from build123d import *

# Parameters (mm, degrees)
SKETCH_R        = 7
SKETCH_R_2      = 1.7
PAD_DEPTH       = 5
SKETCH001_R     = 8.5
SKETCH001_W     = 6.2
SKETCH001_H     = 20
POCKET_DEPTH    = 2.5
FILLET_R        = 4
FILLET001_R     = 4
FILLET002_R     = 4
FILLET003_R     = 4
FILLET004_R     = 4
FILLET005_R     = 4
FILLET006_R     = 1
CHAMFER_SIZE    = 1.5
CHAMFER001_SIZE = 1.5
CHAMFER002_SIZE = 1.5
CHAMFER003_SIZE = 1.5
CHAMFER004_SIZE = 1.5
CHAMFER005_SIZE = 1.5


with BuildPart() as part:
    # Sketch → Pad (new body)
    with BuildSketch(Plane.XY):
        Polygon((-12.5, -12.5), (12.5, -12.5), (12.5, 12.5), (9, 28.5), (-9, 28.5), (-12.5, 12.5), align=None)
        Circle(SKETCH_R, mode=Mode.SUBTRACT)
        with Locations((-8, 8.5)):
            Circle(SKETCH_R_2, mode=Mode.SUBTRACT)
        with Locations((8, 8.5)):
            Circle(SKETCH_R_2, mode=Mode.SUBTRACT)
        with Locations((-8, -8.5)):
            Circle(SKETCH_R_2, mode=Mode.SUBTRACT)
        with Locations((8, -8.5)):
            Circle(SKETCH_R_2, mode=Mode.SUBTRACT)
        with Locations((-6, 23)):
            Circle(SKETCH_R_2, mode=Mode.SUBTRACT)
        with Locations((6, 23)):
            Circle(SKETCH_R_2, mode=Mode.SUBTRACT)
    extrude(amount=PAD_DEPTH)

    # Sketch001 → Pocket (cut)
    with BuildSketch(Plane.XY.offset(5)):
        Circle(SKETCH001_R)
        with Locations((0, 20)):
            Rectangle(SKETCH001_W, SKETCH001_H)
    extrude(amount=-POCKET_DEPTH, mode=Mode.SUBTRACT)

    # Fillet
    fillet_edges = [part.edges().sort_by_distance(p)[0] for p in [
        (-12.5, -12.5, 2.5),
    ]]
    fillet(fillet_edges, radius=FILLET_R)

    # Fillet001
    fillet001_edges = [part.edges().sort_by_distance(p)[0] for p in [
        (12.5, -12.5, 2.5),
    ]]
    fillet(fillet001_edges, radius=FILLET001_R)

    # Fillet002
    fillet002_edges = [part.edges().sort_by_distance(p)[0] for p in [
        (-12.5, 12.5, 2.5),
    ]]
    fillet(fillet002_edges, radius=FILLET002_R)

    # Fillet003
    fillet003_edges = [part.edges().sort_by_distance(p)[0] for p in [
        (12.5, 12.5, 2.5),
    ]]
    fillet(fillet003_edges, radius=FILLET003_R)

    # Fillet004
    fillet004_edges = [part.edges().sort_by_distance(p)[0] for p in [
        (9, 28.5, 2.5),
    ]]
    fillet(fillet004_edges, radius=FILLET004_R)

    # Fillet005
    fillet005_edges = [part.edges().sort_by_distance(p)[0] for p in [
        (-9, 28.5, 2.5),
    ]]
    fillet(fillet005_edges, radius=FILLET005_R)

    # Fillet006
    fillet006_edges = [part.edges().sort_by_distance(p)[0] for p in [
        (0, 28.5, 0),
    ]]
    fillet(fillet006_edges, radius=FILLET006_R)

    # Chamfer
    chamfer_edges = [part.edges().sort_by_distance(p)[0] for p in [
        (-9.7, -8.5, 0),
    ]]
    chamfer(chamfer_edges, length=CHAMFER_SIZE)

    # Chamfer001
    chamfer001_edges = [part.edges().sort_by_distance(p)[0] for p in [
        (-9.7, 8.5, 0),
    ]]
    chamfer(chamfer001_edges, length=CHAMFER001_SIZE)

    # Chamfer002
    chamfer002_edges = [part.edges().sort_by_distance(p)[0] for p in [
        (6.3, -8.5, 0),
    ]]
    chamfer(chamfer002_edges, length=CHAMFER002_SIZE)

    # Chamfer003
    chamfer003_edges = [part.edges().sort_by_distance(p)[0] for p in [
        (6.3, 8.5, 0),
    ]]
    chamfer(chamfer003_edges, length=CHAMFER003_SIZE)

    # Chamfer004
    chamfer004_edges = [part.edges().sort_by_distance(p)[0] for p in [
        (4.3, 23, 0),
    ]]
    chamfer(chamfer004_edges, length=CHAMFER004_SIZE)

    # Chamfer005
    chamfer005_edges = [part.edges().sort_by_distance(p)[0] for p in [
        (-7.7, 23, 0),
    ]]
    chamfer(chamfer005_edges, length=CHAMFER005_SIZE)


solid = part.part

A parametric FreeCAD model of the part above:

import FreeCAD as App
import Part
import Sketcher
from FreeCAD import Vector
Q = App.Units.Quantity


def edges_at(feature, points):
    """Names of the edges that pass closest to the given points."""
    edges = feature.Shape.Edges
    near = lambda p: min(range(len(edges)), key=lambda i: edges[i].distToShape(Part.Vertex(*p))[0])
    return sorted({f"Edge{near(p) + 1}" for p in points})

doc = App.newDocument("Part")
body = doc.addObject("PartDesign::Body", "Body")

sketch1 = body.newObject("Sketcher::SketchObject", "Sketch")
sketch1.AttachmentSupport = (doc.getObject("XY_Plane"), [""])
sketch1.MapMode = "FlatFace"
sketch1.addGeometry([
    Part.LineSegment(Vector(-12.5, -12.5, 0), Vector(12.5, -12.5, 0)),
    Part.LineSegment(Vector(12.5, -12.5, 0), Vector(12.5, 12.5, 0)),
    Part.LineSegment(Vector(12.5, 12.5, 0), Vector(9, 28.5, 0)),
    Part.LineSegment(Vector(9, 28.5, 0), Vector(-9, 28.5, 0)),
    Part.LineSegment(Vector(-9, 28.5, 0), Vector(-12.5, 12.5, 0)),
    Part.LineSegment(Vector(-12.5, 12.5, 0), Vector(-12.5, -12.5, 0)),
    Part.Circle(Vector(-8, -8.5, 0), Vector(0, 0, 1), 1.7),
    Part.Circle(Vector(8, -8.5, 0), Vector(0, 0, 1), 1.7),
    Part.Circle(Vector(0, 0, 0), Vector(0, 0, 1), 7),
    Part.Circle(Vector(-8, 8.5, 0), Vector(0, 0, 1), 1.7),
    Part.Circle(Vector(-6, 23, 0), Vector(0, 0, 1), 1.7),
    Part.Circle(Vector(8, 8.5, 0), Vector(0, 0, 1), 1.7),
    Part.Circle(Vector(6, 23, 0), Vector(0, 0, 1), 1.7),
], False)
sketch1.addConstraint([
    Sketcher.Constraint("Coincident", 0, 2, 1, 1),
    Sketcher.Constraint("Coincident", 1, 2, 2, 1),
    Sketcher.Constraint("Coincident", 2, 2, 3, 1),
    Sketcher.Constraint("Coincident", 3, 2, 4, 1),
    Sketcher.Constraint("Coincident", 4, 2, 5, 1),
    Sketcher.Constraint("Coincident", 5, 2, 0, 1),
    Sketcher.Constraint("Horizontal", 0),
    Sketcher.Constraint("Vertical", 1),
    Sketcher.Constraint("Horizontal", 3),
    Sketcher.Constraint("Vertical", 5),
    Sketcher.Constraint("Coincident", 8, 3, -1, 1),
    Sketcher.Constraint("Equal", 6, 7),
    Sketcher.Constraint("Equal", 7, 9),
    Sketcher.Constraint("Equal", 9, 10),
    Sketcher.Constraint("Equal", 10, 11),
    Sketcher.Constraint("Equal", 11, 12),
    Sketcher.Constraint("Symmetric", 7, 3, 9, 3, -1, 1),
    Sketcher.Constraint("Symmetric", 6, 3, 11, 3, -1, 1),
    Sketcher.Constraint("Symmetric", 0, 2, 4, 2, -1, 1),
    Sketcher.Constraint("Symmetric", 6, 3, 7, 3, -2),
    Sketcher.Constraint("Symmetric", 10, 3, 12, 3, -2),
    Sketcher.Constraint("Horizontal", 1, 2, 4, 2),
    Sketcher.Constraint("Equal", 0, 1),
    Sketcher.Constraint("Equal", 2, 4),
    Sketcher.Constraint("Diameter", 8, Q("14 mm")),
    Sketcher.Constraint("Diameter", 6, Q("3.4 mm")),
    Sketcher.Constraint("DistanceX", 0, 1, 0, 2, Q("25 mm")),
    Sketcher.Constraint("DistanceX", 3, 2, 3, 1, Q("18 mm")),
    Sketcher.Constraint("DistanceX", 6, 3, -1, 1, Q("8 mm")),
    Sketcher.Constraint("DistanceX", 10, 3, -1, 1, Q("6 mm")),
    Sketcher.Constraint("DistanceY", -1, 1, 10, 3, Q("23 mm")),
    Sketcher.Constraint("DistanceY", 6, 3, 9, 3, Q("17 mm")),
    Sketcher.Constraint("DistanceY", 1, 2, 2, 2, Q("16 mm")),
])
pad1 = body.newObject("PartDesign::Pad", "Pad")
pad1.Profile = sketch1
pad1.Length = 5

sketch2 = body.newObject("Sketcher::SketchObject", "Sketch001")
sketch2.AttachmentSupport = (doc.getObject("XY_Plane"), [""])
sketch2.MapMode = "FlatFace"
sketch2.AttachmentOffset = App.Placement(Vector(0, 0, 5), App.Rotation())
sketch2.addGeometry([
    Part.Circle(Vector(0, 0, 0), Vector(0, 0, 1), 8),
    Part.LineSegment(Vector(-3, 30, 0), Vector(-3, 10, 0)),
    Part.LineSegment(Vector(-3, 10, 0), Vector(3, 10, 0)),
    Part.LineSegment(Vector(3, 10, 0), Vector(3, 30, 0)),
    Part.LineSegment(Vector(3, 30, 0), Vector(-3, 30, 0)),
], False)
sketch2.addConstraint([
    Sketcher.Constraint("Coincident", 1, 2, 2, 1),
    Sketcher.Constraint("Coincident", 2, 2, 3, 1),
    Sketcher.Constraint("Coincident", 3, 2, 4, 1),
    Sketcher.Constraint("Coincident", 4, 2, 1, 1),
    Sketcher.Constraint("Vertical", 1),
    Sketcher.Constraint("Horizontal", 2),
    Sketcher.Constraint("Vertical", 3),
    Sketcher.Constraint("Horizontal", 4),
    Sketcher.Constraint("Coincident", 0, 3, -1, 1),
    Sketcher.Constraint("Diameter", 0, Q("17 mm")),
    Sketcher.Constraint("DistanceY", 1, 2, 1, 1, Q("20 mm")),
    Sketcher.Constraint("DistanceX", 2, 1, 2, 2, Q("6.2 mm")),
    Sketcher.Constraint("DistanceY", -1, 1, 1, 2, Q("10 mm")),
    Sketcher.Constraint("DistanceX", 1, 2, -1, 1, Q("3.1 mm")),
])
pocket1 = body.newObject("PartDesign::Pocket", "Pocket")
pocket1.Profile = sketch2
pocket1.Length = 2.5
doc.recompute()

fillet = body.newObject("PartDesign::Fillet", "Fillet")
fillet.Base = (pocket1, edges_at(pocket1, [(-12.5, -12.5, 2.5)]))
fillet.Radius = 4
doc.recompute()

fillet2 = body.newObject("PartDesign::Fillet", "Fillet001")
fillet2.Base = (fillet, edges_at(fillet, [(12.5, -12.5, 2.5)]))
fillet2.Radius = 4
doc.recompute()

fillet3 = body.newObject("PartDesign::Fillet", "Fillet002")
fillet3.Base = (fillet2, edges_at(fillet2, [(-12.5, 12.5, 2.5)]))
fillet3.Radius = 4
doc.recompute()

fillet4 = body.newObject("PartDesign::Fillet", "Fillet003")
fillet4.Base = (fillet3, edges_at(fillet3, [(12.5, 12.5, 2.5)]))
fillet4.Radius = 4
doc.recompute()

fillet5 = body.newObject("PartDesign::Fillet", "Fillet004")
fillet5.Base = (fillet4, edges_at(fillet4, [(9, 28.5, 2.5)]))
fillet5.Radius = 4
doc.recompute()

fillet6 = body.newObject("PartDesign::Fillet", "Fillet005")
fillet6.Base = (fillet5, edges_at(fillet5, [(-9, 28.5, 2.5)]))
fillet6.Radius = 4
doc.recompute()

fillet7 = body.newObject("PartDesign::Fillet", "Fillet006")
fillet7.Base = (fillet6, edges_at(fillet6, [(0, 28.5, 0)]))
fillet7.Radius = 1
doc.recompute()

chamfer = body.newObject("PartDesign::Chamfer", "Chamfer")
chamfer.Base = (fillet7, edges_at(fillet7, [(-9.7, -8.5, 0)]))
chamfer.Size = 1.5
doc.recompute()

chamfer2 = body.newObject("PartDesign::Chamfer", "Chamfer001")
chamfer2.Base = (chamfer, edges_at(chamfer, [(-9.7, 8.5, 0)]))
chamfer2.Size = 1.5
doc.recompute()

chamfer3 = body.newObject("PartDesign::Chamfer", "Chamfer002")
chamfer3.Base = (chamfer2, edges_at(chamfer2, [(6.3, -8.5, 0)]))
chamfer3.Size = 1.5
doc.recompute()

chamfer4 = body.newObject("PartDesign::Chamfer", "Chamfer003")
chamfer4.Base = (chamfer3, edges_at(chamfer3, [(6.3, 8.5, 0)]))
chamfer4.Size = 1.5
doc.recompute()

chamfer5 = body.newObject("PartDesign::Chamfer", "Chamfer004")
chamfer5.Base = (chamfer4, edges_at(chamfer4, [(4.3, 23, 0)]))
chamfer5.Size = 1.5
doc.recompute()

chamfer6 = body.newObject("PartDesign::Chamfer", "Chamfer005")
chamfer6.Base = (chamfer5, edges_at(chamfer5, [(-7.7, 23, 0)]))
chamfer6.Size = 1.5

doc.recompute()
